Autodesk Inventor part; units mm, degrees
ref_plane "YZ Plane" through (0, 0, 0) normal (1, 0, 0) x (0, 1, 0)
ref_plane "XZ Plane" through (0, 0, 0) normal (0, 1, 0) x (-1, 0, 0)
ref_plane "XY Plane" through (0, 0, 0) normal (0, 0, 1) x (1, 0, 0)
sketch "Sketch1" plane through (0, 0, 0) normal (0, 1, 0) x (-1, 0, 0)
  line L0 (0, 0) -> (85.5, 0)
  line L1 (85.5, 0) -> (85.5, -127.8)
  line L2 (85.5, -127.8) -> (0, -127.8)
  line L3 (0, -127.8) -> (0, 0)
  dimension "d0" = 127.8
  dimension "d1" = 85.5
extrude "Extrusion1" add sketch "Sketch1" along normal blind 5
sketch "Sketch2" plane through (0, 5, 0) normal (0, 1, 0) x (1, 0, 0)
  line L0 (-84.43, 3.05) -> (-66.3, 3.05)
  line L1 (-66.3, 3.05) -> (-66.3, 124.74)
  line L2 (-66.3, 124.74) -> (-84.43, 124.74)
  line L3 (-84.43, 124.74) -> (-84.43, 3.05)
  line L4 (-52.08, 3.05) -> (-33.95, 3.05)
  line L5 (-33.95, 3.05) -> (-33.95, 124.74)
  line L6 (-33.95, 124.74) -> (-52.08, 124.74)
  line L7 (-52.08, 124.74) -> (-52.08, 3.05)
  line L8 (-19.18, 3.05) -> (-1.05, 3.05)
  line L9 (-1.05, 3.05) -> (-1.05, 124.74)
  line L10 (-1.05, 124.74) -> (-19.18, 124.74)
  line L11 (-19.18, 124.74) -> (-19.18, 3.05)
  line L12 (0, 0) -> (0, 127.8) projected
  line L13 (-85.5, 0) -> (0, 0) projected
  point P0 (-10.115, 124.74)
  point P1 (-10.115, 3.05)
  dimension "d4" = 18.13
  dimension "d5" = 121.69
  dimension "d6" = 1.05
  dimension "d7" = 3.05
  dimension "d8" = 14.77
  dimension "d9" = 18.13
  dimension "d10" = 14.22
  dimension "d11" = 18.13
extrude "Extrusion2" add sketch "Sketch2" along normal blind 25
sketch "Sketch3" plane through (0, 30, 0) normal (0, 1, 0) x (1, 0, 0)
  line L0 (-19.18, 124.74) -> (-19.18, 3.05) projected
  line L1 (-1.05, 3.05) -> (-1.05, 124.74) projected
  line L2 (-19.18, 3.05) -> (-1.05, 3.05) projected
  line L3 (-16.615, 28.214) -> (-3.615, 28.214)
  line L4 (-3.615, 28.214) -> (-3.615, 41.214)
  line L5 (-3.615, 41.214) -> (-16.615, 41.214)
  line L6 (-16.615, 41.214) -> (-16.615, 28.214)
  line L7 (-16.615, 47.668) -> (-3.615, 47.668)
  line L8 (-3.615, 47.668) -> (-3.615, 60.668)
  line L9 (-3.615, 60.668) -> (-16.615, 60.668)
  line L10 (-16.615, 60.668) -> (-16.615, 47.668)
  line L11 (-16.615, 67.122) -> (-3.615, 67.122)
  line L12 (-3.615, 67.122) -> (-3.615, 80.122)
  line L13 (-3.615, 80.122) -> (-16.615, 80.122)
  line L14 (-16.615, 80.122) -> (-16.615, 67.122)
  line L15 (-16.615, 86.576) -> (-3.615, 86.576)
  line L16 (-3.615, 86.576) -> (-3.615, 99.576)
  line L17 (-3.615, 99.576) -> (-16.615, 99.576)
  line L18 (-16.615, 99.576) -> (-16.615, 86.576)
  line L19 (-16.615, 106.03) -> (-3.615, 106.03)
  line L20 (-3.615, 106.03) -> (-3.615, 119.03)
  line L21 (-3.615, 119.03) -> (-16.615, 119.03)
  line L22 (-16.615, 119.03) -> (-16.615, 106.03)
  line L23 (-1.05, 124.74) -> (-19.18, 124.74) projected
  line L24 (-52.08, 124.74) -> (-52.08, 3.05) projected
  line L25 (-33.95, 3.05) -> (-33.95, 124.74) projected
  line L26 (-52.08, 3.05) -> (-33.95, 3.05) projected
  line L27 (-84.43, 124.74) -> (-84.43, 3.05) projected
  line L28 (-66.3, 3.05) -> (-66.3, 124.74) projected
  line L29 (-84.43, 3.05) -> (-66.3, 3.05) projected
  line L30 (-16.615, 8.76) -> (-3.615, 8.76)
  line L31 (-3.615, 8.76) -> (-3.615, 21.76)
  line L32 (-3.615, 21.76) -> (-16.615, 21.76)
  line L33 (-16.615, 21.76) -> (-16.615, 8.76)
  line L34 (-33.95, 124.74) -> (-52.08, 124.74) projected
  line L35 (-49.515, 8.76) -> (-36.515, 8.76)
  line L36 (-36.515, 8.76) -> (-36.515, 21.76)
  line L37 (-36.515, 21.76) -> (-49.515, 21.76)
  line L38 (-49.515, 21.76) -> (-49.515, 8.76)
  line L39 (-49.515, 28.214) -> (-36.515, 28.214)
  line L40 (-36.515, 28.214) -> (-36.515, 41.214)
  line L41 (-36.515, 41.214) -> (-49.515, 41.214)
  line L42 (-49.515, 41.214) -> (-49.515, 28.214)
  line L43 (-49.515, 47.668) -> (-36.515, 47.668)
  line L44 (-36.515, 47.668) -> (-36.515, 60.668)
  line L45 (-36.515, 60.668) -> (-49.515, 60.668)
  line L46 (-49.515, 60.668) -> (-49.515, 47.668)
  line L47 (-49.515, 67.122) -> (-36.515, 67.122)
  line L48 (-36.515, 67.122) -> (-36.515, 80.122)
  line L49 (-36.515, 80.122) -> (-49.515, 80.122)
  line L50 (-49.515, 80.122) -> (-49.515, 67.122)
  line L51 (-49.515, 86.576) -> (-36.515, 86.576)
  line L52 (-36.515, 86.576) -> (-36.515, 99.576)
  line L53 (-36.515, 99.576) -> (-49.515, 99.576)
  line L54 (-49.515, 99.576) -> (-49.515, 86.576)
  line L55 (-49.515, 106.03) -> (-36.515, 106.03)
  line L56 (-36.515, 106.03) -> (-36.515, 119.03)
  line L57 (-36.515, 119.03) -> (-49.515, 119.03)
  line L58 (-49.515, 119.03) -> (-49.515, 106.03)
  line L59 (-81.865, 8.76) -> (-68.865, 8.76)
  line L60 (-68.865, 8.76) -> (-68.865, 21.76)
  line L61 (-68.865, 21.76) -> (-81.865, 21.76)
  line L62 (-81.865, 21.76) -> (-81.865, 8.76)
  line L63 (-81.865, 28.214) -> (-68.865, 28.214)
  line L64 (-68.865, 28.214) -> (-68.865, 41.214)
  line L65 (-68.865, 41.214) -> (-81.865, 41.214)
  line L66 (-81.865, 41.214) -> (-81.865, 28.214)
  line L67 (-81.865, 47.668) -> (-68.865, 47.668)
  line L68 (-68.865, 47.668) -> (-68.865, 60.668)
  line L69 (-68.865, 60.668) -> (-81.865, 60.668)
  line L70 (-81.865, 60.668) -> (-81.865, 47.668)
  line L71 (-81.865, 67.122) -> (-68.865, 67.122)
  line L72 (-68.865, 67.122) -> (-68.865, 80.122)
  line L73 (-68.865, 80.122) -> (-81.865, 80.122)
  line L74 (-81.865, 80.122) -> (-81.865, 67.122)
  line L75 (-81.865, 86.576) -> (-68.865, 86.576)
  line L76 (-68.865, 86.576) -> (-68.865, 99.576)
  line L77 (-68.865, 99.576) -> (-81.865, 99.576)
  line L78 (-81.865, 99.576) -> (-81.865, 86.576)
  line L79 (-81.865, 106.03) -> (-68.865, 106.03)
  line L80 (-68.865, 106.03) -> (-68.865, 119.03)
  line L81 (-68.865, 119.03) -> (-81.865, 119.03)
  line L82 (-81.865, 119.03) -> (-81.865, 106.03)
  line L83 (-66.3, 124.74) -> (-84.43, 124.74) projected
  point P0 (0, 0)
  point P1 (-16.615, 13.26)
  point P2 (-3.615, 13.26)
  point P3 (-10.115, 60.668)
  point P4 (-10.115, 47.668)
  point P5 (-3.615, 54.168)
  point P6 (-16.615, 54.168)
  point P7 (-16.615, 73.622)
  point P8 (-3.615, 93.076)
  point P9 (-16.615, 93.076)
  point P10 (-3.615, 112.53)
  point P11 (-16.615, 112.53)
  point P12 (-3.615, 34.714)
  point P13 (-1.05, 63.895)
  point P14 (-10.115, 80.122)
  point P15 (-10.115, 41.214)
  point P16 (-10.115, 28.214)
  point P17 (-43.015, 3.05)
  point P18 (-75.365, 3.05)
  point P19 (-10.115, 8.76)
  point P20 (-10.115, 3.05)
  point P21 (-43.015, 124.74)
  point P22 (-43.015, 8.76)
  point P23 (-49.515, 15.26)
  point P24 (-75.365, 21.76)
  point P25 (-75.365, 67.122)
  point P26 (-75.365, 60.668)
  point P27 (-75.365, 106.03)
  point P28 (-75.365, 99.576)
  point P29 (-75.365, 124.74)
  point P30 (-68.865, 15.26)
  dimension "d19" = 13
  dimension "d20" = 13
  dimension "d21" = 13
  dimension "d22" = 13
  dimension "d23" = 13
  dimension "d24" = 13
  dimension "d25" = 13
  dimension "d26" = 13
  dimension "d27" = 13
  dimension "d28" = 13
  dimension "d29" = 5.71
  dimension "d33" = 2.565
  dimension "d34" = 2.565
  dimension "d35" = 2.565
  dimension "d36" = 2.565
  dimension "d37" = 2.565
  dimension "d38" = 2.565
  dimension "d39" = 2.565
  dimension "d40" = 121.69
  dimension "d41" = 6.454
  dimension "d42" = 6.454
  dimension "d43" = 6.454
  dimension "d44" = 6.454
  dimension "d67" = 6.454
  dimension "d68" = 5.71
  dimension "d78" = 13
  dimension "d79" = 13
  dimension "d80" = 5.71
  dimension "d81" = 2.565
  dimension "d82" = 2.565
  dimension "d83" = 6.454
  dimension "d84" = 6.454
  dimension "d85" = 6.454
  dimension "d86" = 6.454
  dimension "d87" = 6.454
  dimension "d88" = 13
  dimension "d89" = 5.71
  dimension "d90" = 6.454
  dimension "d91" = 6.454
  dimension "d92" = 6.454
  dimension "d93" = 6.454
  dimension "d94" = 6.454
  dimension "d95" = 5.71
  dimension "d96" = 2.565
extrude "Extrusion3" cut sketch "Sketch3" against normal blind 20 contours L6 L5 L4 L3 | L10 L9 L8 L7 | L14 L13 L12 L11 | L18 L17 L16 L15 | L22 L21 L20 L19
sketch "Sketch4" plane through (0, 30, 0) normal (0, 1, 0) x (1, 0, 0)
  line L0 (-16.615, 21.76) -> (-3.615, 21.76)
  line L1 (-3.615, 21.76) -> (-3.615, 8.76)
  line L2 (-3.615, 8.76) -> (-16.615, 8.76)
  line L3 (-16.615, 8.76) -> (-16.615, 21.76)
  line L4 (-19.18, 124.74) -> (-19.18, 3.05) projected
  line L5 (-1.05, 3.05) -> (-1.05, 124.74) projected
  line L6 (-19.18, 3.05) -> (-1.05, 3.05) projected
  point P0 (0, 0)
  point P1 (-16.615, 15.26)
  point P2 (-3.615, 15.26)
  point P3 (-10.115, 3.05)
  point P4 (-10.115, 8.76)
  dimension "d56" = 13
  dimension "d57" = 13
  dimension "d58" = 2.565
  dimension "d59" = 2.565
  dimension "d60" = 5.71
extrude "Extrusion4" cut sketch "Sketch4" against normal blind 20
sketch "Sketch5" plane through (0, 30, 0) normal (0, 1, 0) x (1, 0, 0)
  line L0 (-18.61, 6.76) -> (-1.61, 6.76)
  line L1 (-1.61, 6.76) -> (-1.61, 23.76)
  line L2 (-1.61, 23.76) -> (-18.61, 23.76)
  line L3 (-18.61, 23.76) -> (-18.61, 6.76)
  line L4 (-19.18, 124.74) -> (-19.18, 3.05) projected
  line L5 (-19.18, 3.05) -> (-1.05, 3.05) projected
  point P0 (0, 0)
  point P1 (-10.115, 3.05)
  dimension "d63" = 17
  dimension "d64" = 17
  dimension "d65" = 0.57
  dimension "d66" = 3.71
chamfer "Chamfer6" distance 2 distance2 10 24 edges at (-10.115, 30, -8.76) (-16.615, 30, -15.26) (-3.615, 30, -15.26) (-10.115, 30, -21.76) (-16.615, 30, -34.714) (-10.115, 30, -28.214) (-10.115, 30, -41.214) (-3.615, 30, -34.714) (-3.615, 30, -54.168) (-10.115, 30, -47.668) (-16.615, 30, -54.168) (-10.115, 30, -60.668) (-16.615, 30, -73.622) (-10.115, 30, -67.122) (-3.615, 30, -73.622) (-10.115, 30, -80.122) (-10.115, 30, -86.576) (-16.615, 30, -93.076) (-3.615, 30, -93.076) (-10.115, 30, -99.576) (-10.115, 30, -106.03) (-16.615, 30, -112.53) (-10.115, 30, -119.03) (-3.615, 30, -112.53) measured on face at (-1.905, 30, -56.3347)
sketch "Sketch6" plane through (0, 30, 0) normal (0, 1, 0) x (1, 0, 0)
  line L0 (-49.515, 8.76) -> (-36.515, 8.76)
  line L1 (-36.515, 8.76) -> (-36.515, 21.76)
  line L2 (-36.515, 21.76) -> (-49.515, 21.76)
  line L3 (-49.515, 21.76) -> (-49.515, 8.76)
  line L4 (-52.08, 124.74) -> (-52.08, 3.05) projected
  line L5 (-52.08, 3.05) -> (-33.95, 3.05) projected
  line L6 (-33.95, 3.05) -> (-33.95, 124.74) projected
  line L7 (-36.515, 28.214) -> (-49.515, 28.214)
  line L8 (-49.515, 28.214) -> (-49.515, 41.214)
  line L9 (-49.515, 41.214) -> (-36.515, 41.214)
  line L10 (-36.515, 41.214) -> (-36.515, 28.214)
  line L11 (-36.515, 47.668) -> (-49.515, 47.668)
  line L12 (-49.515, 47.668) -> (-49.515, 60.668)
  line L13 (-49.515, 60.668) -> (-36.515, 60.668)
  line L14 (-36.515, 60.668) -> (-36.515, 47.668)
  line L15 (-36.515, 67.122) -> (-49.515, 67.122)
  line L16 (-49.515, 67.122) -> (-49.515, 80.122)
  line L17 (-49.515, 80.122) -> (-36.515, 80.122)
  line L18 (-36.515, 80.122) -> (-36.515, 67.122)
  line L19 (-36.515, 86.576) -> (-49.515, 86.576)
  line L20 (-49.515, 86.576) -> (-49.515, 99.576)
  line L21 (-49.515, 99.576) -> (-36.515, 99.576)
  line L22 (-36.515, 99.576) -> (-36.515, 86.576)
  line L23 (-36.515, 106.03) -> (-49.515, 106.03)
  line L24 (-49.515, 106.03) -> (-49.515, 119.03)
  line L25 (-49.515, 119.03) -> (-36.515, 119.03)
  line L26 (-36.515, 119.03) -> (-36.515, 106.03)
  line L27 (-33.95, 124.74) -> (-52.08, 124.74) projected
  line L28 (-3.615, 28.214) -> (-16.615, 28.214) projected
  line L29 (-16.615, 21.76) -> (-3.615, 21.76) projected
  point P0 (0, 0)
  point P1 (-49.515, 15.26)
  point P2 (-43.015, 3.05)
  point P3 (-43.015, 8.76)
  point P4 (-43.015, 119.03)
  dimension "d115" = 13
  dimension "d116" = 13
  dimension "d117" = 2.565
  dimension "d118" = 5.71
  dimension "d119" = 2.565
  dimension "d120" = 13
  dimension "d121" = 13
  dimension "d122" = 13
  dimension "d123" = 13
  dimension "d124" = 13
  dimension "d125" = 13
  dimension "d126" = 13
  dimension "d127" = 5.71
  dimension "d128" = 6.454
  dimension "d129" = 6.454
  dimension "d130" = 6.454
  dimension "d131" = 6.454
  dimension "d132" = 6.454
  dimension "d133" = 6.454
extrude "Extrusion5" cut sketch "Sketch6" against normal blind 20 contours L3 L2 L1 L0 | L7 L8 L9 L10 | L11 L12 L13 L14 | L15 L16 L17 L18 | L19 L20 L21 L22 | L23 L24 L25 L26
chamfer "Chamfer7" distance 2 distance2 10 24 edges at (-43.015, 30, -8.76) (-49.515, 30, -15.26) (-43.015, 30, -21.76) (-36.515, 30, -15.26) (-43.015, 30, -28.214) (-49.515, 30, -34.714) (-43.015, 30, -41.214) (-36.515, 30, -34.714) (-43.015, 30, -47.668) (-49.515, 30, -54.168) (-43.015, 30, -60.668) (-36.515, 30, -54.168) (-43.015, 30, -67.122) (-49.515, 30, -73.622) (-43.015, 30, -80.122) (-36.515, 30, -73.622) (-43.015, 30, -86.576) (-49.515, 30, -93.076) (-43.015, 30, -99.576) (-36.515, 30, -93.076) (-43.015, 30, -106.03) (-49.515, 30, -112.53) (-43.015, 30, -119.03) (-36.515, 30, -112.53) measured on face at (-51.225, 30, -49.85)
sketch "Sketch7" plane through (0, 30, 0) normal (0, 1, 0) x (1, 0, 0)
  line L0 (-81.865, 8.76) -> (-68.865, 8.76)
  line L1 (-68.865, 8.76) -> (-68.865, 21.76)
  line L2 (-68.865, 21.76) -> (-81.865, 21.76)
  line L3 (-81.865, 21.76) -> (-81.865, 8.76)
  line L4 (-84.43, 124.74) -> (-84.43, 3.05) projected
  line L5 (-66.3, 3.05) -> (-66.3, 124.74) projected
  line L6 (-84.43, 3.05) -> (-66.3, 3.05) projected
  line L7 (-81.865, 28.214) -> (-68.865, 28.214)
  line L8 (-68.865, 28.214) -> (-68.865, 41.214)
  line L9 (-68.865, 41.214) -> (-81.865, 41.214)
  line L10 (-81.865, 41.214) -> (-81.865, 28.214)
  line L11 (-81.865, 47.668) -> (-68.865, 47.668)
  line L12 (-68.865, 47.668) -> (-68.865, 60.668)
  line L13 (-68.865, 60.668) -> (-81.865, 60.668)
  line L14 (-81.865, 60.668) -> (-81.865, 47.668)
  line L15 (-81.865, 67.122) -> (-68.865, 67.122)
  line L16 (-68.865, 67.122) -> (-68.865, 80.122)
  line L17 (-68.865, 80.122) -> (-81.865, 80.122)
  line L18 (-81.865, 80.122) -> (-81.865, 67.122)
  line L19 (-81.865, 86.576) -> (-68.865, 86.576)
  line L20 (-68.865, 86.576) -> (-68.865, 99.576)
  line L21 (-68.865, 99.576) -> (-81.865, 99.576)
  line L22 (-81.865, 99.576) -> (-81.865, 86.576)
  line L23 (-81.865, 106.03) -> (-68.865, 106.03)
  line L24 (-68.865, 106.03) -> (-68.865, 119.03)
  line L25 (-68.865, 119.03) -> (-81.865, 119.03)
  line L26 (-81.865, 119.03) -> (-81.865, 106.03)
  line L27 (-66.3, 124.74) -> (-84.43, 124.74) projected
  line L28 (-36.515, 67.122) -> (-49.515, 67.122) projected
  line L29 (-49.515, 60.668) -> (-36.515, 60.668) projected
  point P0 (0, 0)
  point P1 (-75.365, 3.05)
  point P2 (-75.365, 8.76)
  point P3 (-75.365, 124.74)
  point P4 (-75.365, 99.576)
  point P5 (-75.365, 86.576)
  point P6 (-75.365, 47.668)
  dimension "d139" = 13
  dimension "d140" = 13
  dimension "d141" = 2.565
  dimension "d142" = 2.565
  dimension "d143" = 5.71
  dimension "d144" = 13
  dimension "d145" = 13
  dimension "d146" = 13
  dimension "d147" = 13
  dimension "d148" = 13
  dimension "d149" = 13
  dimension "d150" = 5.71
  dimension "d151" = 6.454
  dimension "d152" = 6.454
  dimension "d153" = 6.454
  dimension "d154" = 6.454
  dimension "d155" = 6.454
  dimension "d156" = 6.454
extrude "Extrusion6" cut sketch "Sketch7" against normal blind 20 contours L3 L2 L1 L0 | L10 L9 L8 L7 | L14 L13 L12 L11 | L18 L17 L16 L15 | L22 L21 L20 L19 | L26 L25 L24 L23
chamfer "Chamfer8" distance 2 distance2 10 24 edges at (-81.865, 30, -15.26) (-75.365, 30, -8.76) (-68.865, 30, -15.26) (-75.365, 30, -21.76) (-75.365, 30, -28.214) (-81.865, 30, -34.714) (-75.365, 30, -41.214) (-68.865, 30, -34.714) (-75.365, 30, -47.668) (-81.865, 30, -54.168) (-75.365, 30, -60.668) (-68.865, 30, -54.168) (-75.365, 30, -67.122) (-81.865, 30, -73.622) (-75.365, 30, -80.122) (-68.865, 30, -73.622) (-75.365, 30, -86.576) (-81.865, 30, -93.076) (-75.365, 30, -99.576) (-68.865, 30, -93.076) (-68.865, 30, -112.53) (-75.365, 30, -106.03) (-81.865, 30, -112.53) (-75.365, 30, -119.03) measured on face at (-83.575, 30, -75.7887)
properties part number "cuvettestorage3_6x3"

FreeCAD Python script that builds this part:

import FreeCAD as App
import Part
import Sketcher
from FreeCAD import Vector
Q = App.Units.Quantity


def edges_at(feature, points):
    """Names of the edges that pass closest to the given points."""
    edges = feature.Shape.Edges
    near = lambda p: min(range(len(edges)), key=lambda i: edges[i].distToShape(Part.Vertex(*p))[0])
    return sorted({f"Edge{near(p) + 1}" for p in points})


def add_polygon(sketch, points):
    """Adds a closed chain of lines whose ends are joined by coincident constraints."""
    first, n = sketch.GeometryCount, len(points)
    for a, b in zip(points, points[1:] + points[:1]):
        sketch.addGeometry(Part.LineSegment(App.Vector(*a, 0), App.Vector(*b, 0)), False)
    for i in range(n):
        sketch.addConstraint(Sketcher.Constraint("Coincident", first + i, 2, first + (i + 1) % n, 1))

doc = App.newDocument("Part")
body = doc.addObject("PartDesign::Body", "Body")

# Sketch on XZ plane
sketch1 = body.newObject("Sketcher::SketchObject", "Sketch")
sketch1.AttachmentSupport = (doc.getObject("XZ_Plane"), [""])
sketch1.MapMode = "FlatFace"
add_polygon(sketch1, [(-85.5, 0), (0, 0), (0, -127.8), (-85.5, -127.8)])  # lines 0-3
sketch1.addConstraint(Sketcher.Constraint("Horizontal", 0))
sketch1.addConstraint(Sketcher.Constraint("Vertical", 1))
sketch1.addConstraint(Sketcher.Constraint("Horizontal", 2))
sketch1.addConstraint(Sketcher.Constraint("Vertical", 3))
sketch1.addConstraint(Sketcher.Constraint("Coincident", 0, 2, -1, 1))
sketch1.addConstraint(Sketcher.Constraint("DistanceX", 0, 1, 0, 2, Q("85.5 mm")))
sketch1.addConstraint(Sketcher.Constraint("DistanceY", 1, 2, 1, 1, Q("127.8 mm")))
pad1 = body.newObject("PartDesign::Pad", "Pad")
pad1.Profile = sketch1
pad1.Length = 5
pad1.Reversed = True

# Sketch on XZ plane
sketch2 = body.newObject("Sketcher::SketchObject", "Sketch001")
sketch2.AttachmentSupport = (doc.getObject("XZ_Plane"), [""])
sketch2.MapMode = "FlatFace"
sketch2.AttachmentOffset = App.Placement(Vector(0, 0, -5), App.Rotation())
add_polygon(sketch2, [(-84.43, -124.74), (-84.43, -3.05), (-66.3, -3.05), (-66.3, -124.74)])  # lines 0-3
add_polygon(sketch2, [(-52.08, -124.74), (-52.08, -3.05), (-33.95, -3.05), (-33.95, -124.74)])  # lines 4-7
add_polygon(sketch2, [(-19.18, -124.74), (-19.18, -3.05), (-1.05, -3.05), (-1.05, -124.74)])  # lines 8-11
sketch2.addConstraint(Sketcher.Constraint("Vertical", 0))
sketch2.addConstraint(Sketcher.Constraint("Horizontal", 1))
sketch2.addConstraint(Sketcher.Constraint("Vertical", 2))
sketch2.addConstraint(Sketcher.Constraint("Horizontal", 3))
sketch2.addConstraint(Sketcher.Constraint("Vertical", 4))
sketch2.addConstraint(Sketcher.Constraint("Horizontal", 5))
sketch2.addConstraint(Sketcher.Constraint("Vertical", 6))
sketch2.addConstraint(Sketcher.Constraint("Horizontal", 7))
sketch2.addConstraint(Sketcher.Constraint("Vertical", 8))
sketch2.addConstraint(Sketcher.Constraint("Horizontal", 9))
sketch2.addConstraint(Sketcher.Constraint("Vertical", 10))
sketch2.addConstraint(Sketcher.Constraint("Horizontal", 11))
sketch2.addConstraint(Sketcher.Constraint("Horizontal", 1, 2, 4, 2))
sketch2.addConstraint(Sketcher.Constraint("Horizontal", 3, 2, 6, 2))
sketch2.addConstraint(Sketcher.Constraint("Horizontal", 5, 2, 8, 2))
sketch2.addConstraint(Sketcher.Constraint("Horizontal", 7, 2, 10, 2))
sketch2.addConstraint(Sketcher.Constraint("Equal", 3, 5))
sketch2.addConstraint(Sketcher.Constraint("Equal", 7, 9))
sketch2.addConstraint(Sketcher.Constraint("DistanceX", 1, 1, 1, 2, Q("18.13 mm")))
sketch2.addConstraint(Sketcher.Constraint("DistanceY", 0, 1, 0, 2, Q("121.69 mm")))
sketch2.addConstraint(Sketcher.Constraint("DistanceY", 0, 2, -1, 1, Q("3.05 mm")))
sketch2.addConstraint(Sketcher.Constraint("DistanceX", 9, 2, -1, 1, Q("1.05 mm")))
sketch2.addConstraint(Sketcher.Constraint("DistanceX", 1, 2, 4, 2, Q("14.22 mm")))
sketch2.addConstraint(Sketcher.Constraint("DistanceX", 5, 2, 8, 2, Q("14.77 mm")))
pad2 = body.newObject("PartDesign::Pad", "Pad001")
pad2.Profile = sketch2
pad2.Length = 25
pad2.Reversed = True

# Sketch on XZ plane
sketch3 = body.newObject("Sketcher::SketchObject", "Sketch002")
sketch3.AttachmentSupport = (doc.getObject("XZ_Plane"), [""])
sketch3.MapMode = "FlatFace"
sketch3.AttachmentOffset = App.Placement(Vector(0, 0, -30), App.Rotation())
add_polygon(sketch3, [(-16.615, -41.214), (-16.615, -28.214), (-3.615, -28.214), (-3.615, -41.214)])  # lines 0-3
add_polygon(sketch3, [(-16.615, -60.668), (-16.615, -47.668), (-3.615, -47.668), (-3.615, -60.668)])  # lines 4-7
add_polygon(sketch3, [(-16.615, -80.122), (-16.615, -67.122), (-3.615, -67.122), (-3.615, -80.122)])  # lines 8-11
add_polygon(sketch3, [(-16.615, -99.576), (-16.615, -86.576), (-3.615, -86.576), (-3.615, -99.576)])  # lines 12-15
add_polygon(sketch3, [(-16.615, -119.03), (-16.615, -106.03), (-3.615, -106.03), (-3.615, -119.03)])  # lines 16-19
sketch3.addConstraint(Sketcher.Constraint("Vertical", 0))
sketch3.addConstraint(Sketcher.Constraint("Horizontal", 1))
sketch3.addConstraint(Sketcher.Constraint("Vertical", 2))
sketch3.addConstraint(Sketcher.Constraint("Horizontal", 3))
sketch3.addConstraint(Sketcher.Constraint("Vertical", 4))
sketch3.addConstraint(Sketcher.Constraint("Horizontal", 5))
sketch3.addConstraint(Sketcher.Constraint("Vertical", 6))
sketch3.addConstraint(Sketcher.Constraint("Horizontal", 7))
sketch3.addConstraint(Sketcher.Constraint("Vertical", 8))
sketch3.addConstraint(Sketcher.Constraint("Horizontal", 9))
sketch3.addConstraint(Sketcher.Constraint("Vertical", 10))
sketch3.addConstraint(Sketcher.Constraint("Horizontal", 11))
sketch3.addConstraint(Sketcher.Constraint("Vertical", 12))
sketch3.addConstraint(Sketcher.Constraint("Horizontal", 13))
sketch3.addConstraint(Sketcher.Constraint("Vertical", 14))
sketch3.addConstraint(Sketcher.Constraint("Horizontal", 15))
sketch3.addConstraint(Sketcher.Constraint("Vertical", 16))
sketch3.addConstraint(Sketcher.Constraint("Horizontal", 17))
sketch3.addConstraint(Sketcher.Constraint("Vertical", 18))
sketch3.addConstraint(Sketcher.Constraint("Horizontal", 19))
sketch3.addConstraint(Sketcher.Constraint("Vertical", 3, 2, 4, 2))
sketch3.addConstraint(Sketcher.Constraint("Vertical", 2, 2, 5, 2))
sketch3.addConstraint(Sketcher.Constraint("Vertical", 7, 2, 8, 2))
sketch3.addConstraint(Sketcher.Constraint("Vertical", 6, 2, 9, 2))
sketch3.addConstraint(Sketcher.Constraint("Vertical", 11, 2, 12, 2))
sketch3.addConstraint(Sketcher.Constraint("Vertical", 10, 2, 13, 2))
sketch3.addConstraint(Sketcher.Constraint("Vertical", 15, 2, 16, 2))
sketch3.addConstraint(Sketcher.Constraint("Vertical", 14, 2, 17, 2))
sketch3.addConstraint(Sketcher.Constraint("Equal", 19, 0))
sketch3.addConstraint(Sketcher.Constraint("Equal", 2, 4))
sketch3.addConstraint(Sketcher.Constraint("Equal", 6, 8))
sketch3.addConstraint(Sketcher.Constraint("Equal", 10, 12))
sketch3.addConstraint(Sketcher.Constraint("Equal", 14, 16))
sketch3.addConstraint(Sketcher.Constraint("DistanceX", 1, 1, 1, 2, Q("13 mm")))
sketch3.addConstraint(Sketcher.Constraint("DistanceY", 4, 2, 3, 2, Q("6.454 mm")))
sketch3.addConstraint(Sketcher.Constraint("DistanceY", 8, 2, 7, 2, Q("6.454 mm")))
sketch3.addConstraint(Sketcher.Constraint("DistanceY", 12, 2, 11, 2, Q("6.454 mm")))
sketch3.addConstraint(Sketcher.Constraint("DistanceY", 16, 2, 15, 2, Q("6.454 mm")))
sketch3.addConstraint(Sketcher.Constraint("DistanceY", 16, 2, -1, 1, Q("106.03 mm")))
sketch3.addConstraint(Sketcher.Constraint("DistanceX", 0, 2, -1, 1, Q("16.615 mm")))
pocket1 = body.newObject("PartDesign::Pocket", "Pocket")
pocket1.Profile = sketch3
pocket1.Length = 20
pocket1.Reversed = True

# Sketch on XZ plane
sketch4 = body.newObject("Sketcher::SketchObject", "Sketch003")
sketch4.AttachmentSupport = (doc.getObject("XZ_Plane"), [""])
sketch4.MapMode = "FlatFace"
sketch4.AttachmentOffset = App.Placement(Vector(0, 0, -30), App.Rotation())
add_polygon(sketch4, [(-3.615, -21.76), (-16.615, -21.76), (-16.615, -8.76), (-3.615, -8.76)])  # lines 0-3
sketch4.addConstraint(Sketcher.Constraint("Horizontal", 0))
sketch4.addConstraint(Sketcher.Constraint("Vertical", 1))
sketch4.addConstraint(Sketcher.Constraint("Horizontal", 2))
sketch4.addConstraint(Sketcher.Constraint("Vertical", 3))
sketch4.addConstraint(Sketcher.Constraint("Equal", 2, 1))
sketch4.addConstraint(Sketcher.Constraint("DistanceX", 0, 2, 0, 1, Q("13 mm")))
sketch4.addConstraint(Sketcher.Constraint("DistanceY", 0, 2, -1, 1, Q("21.76 mm")))
sketch4.addConstraint(Sketcher.Constraint("DistanceX", 0, 2, -1, 1, Q("16.615 mm")))
pocket2 = body.newObject("PartDesign::Pocket", "Pocket001")
pocket2.Profile = sketch4
pocket2.Length = 20
pocket2.Reversed = True
doc.recompute()

chamfer = body.newObject("PartDesign::Chamfer", "Chamfer")
chamfer.Base = (pocket2, edges_at(pocket2, [
    (-10.115, 30, -8.76),
    (-16.615, 30, -15.26),
    (-3.615, 30, -15.26),
    (-10.115, 30, -21.76),
    (-16.615, 30, -34.714),
    (-10.115, 30, -28.214),
    (-10.115, 30, -41.214),
    (-3.615, 30, -34.714),
    (-3.615, 30, -54.168),
    (-10.115, 30, -47.668),
    (-16.615, 30, -54.168),
    (-10.115, 30, -60.668),
    (-16.615, 30, -73.622),
    (-10.115, 30, -67.122),
    (-3.615, 30, -73.622),
    (-10.115, 30, -80.122),
    (-10.115, 30, -86.576),
    (-16.615, 30, -93.076),
    (-3.615, 30, -93.076),
    (-10.115, 30, -99.576),
    (-10.115, 30, -106.03),
    (-16.615, 30, -112.53),
    (-10.115, 30, -119.03),
    (-3.615, 30, -112.53),
]))
chamfer.ChamferType = "Two distances"
chamfer.Size = 2
chamfer.Size2 = 10

# Sketch on XZ plane
sketch5 = body.newObject("Sketcher::SketchObject", "Sketch004")
sketch5.AttachmentSupport = (doc.getObject("XZ_Plane"), [""])
sketch5.MapMode = "FlatFace"
sketch5.AttachmentOffset = App.Placement(Vector(0, 0, -30), App.Rotation())
add_polygon(sketch5, [(-49.515, -21.76), (-49.515, -8.76), (-36.515, -8.76), (-36.515, -21.76)])  # lines 0-3
add_polygon(sketch5, [(-49.515, -28.214), (-36.515, -28.214), (-36.515, -41.214), (-49.515, -41.214)])  # lines 4-7
add_polygon(sketch5, [(-49.515, -47.668), (-36.515, -47.668), (-36.515, -60.668), (-49.515, -60.668)])  # lines 8-11
add_polygon(sketch5, [(-49.515, -67.122), (-36.515, -67.122), (-36.515, -80.122), (-49.515, -80.122)])  # lines 12-15
add_polygon(sketch5, [(-49.515, -86.576), (-36.515, -86.576), (-36.515, -99.576), (-49.515, -99.576)])  # lines 16-19
add_polygon(sketch5, [(-49.515, -106.03), (-36.515, -106.03), (-36.515, -119.03), (-49.515, -119.03)])  # lines 20-23
sketch5.addConstraint(Sketcher.Constraint("Vertical", 0))
sketch5.addConstraint(Sketcher.Constraint("Horizontal", 1))
sketch5.addConstraint(Sketcher.Constraint("Vertical", 2))
sketch5.addConstraint(Sketcher.Constraint("Horizontal", 3))
sketch5.addConstraint(Sketcher.Constraint("Horizontal", 4))
sketch5.addConstraint(Sketcher.Constraint("Vertical", 5))
sketch5.addConstraint(Sketcher.Constraint("Horizontal", 6))
sketch5.addConstraint(Sketcher.Constraint("Vertical", 7))
sketch5.addConstraint(Sketcher.Constraint("Horizontal", 8))
sketch5.addConstraint(Sketcher.Constraint("Vertical", 9))
sketch5.addConstraint(Sketcher.Constraint("Horizontal", 10))
sketch5.addConstraint(Sketcher.Constraint("Vertical", 11))
sketch5.addConstraint(Sketcher.Constraint("Horizontal", 12))
sketch5.addConstraint(Sketcher.Constraint("Vertical", 13))
sketch5.addConstraint(Sketcher.Constraint("Horizontal", 14))
sketch5.addConstraint(Sketcher.Constraint("Vertical", 15))
sketch5.addConstraint(Sketcher.Constraint("Horizontal", 16))
sketch5.addConstraint(Sketcher.Constraint("Vertical", 17))
sketch5.addConstraint(Sketcher.Constraint("Horizontal", 18))
sketch5.addConstraint(Sketcher.Constraint("Vertical", 19))
sketch5.addConstraint(Sketcher.Constraint("Horizontal", 20))
sketch5.addConstraint(Sketcher.Constraint("Vertical", 21))
sketch5.addConstraint(Sketcher.Constraint("Horizontal", 22))
sketch5.addConstraint(Sketcher.Constraint("Vertical", 23))
sketch5.addConstraint(Sketcher.Constraint("Vertical", 2, 2, 4, 2))
sketch5.addConstraint(Sketcher.Constraint("Vertical", 3, 2, 6, 2))
sketch5.addConstraint(Sketcher.Constraint("Vertical", 5, 2, 8, 2))
sketch5.addConstraint(Sketcher.Constraint("Vertical", 7, 2, 10, 2))
sketch5.addConstraint(Sketcher.Constraint("Vertical", 9, 2, 12, 2))
sketch5.addConstraint(Sketcher.Constraint("Vertical", 11, 2, 14, 2))
sketch5.addConstraint(Sketcher.Constraint("Vertical", 13, 2, 16, 2))
sketch5.addConstraint(Sketcher.Constraint("Vertical", 15, 2, 18, 2))
sketch5.addConstraint(Sketcher.Constraint("Vertical", 17, 2, 20, 2))
sketch5.addConstraint(Sketcher.Constraint("Vertical", 19, 2, 22, 2))
sketch5.addConstraint(Sketcher.Constraint("Equal", 22, 0))
sketch5.addConstraint(Sketcher.Constraint("Equal", 2, 5))
sketch5.addConstraint(Sketcher.Constraint("Equal", 7, 9))
sketch5.addConstraint(Sketcher.Constraint("Equal", 11, 13))
sketch5.addConstraint(Sketcher.Constraint("Equal", 15, 17))
sketch5.addConstraint(Sketcher.Constraint("Equal", 19, 21))
sketch5.addConstraint(Sketcher.Constraint("DistanceX", 1, 1, 1, 2, Q("13 mm")))
sketch5.addConstraint(Sketcher.Constraint("DistanceY", 4, 2, 2, 2, Q("6.454 mm")))
sketch5.addConstraint(Sketcher.Constraint("DistanceY", 8, 2, 5, 2, Q("6.454 mm")))
sketch5.addConstraint(Sketcher.Constraint("DistanceY", 12, 2, 9, 2, Q("6.454 mm")))
sketch5.addConstraint(Sketcher.Constraint("DistanceY", 16, 2, 13, 2, Q("6.454 mm")))
sketch5.addConstraint(Sketcher.Constraint("DistanceY", 20, 2, 17, 2, Q("6.454 mm")))
sketch5.addConstraint(Sketcher.Constraint("DistanceY", 0, 2, -1, 1, Q("8.76 mm")))
sketch5.addConstraint(Sketcher.Constraint("DistanceX", 0, 2, -1, 1, Q("49.515 mm")))
pocket3 = body.newObject("PartDesign::Pocket", "Pocket002")
pocket3.Profile = sketch5
pocket3.Length = 20
pocket3.Reversed = True
doc.recompute()

chamfer2 = body.newObject("PartDesign::Chamfer", "Chamfer001")
chamfer2.Base = (pocket3, edges_at(pocket3, [
    (-43.015, 30, -8.76),
    (-49.515, 30, -15.26),
    (-43.015, 30, -21.76),
    (-36.515, 30, -15.26),
    (-43.015, 30, -28.214),
    (-49.515, 30, -34.714),
    (-43.015, 30, -41.214),
    (-36.515, 30, -34.714),
    (-43.015, 30, -47.668),
    (-49.515, 30, -54.168),
    (-43.015, 30, -60.668),
    (-36.515, 30, -54.168),
    (-43.015, 30, -67.122),
    (-49.515, 30, -73.622),
    (-43.015, 30, -80.122),
    (-36.515, 30, -73.622),
    (-43.015, 30, -86.576),
    (-49.515, 30, -93.076),
    (-43.015, 30, -99.576),
    (-36.515, 30, -93.076),
    (-43.015, 30, -106.03),
    (-49.515, 30, -112.53),
    (-43.015, 30, -119.03),
    (-36.515, 30, -112.53),
]))
chamfer2.ChamferType = "Two distances"
chamfer2.Size = 2
chamfer2.Size2 = 10

# Sketch on XZ plane
sketch6 = body.newObject("Sketcher::SketchObject", "Sketch005")
sketch6.AttachmentSupport = (doc.getObject("XZ_Plane"), [""])
sketch6.MapMode = "FlatFace"
sketch6.AttachmentOffset = App.Placement(Vector(0, 0, -30), App.Rotation())
add_polygon(sketch6, [(-81.865, -21.76), (-81.865, -8.76), (-68.865, -8.76), (-68.865, -21.76)])  # lines 0-3
add_polygon(sketch6, [(-81.865, -41.214), (-81.865, -28.214), (-68.865, -28.214), (-68.865, -41.214)])  # lines 4-7
add_polygon(sketch6, [(-81.865, -60.668), (-81.865, -47.668), (-68.865, -47.668), (-68.865, -60.668)])  # lines 8-11
add_polygon(sketch6, [(-81.865, -80.122), (-81.865, -67.122), (-68.865, -67.122), (-68.865, -80.122)])  # lines 12-15
add_polygon(sketch6, [(-81.865, -99.576), (-81.865, -86.576), (-68.865, -86.576), (-68.865, -99.576)])  # lines 16-19
add_polygon(sketch6, [(-81.865, -119.03), (-81.865, -106.03), (-68.865, -106.03), (-68.865, -119.03)])  # lines 20-23
sketch6.addConstraint(Sketcher.Constraint("Vertical", 0))
sketch6.addConstraint(Sketcher.Constraint("Horizontal", 1))
sketch6.addConstraint(Sketcher.Constraint("Vertical", 2))
sketch6.addConstraint(Sketcher.Constraint("Horizontal", 3))
sketch6.addConstraint(Sketcher.Constraint("Vertical", 4))
sketch6.addConstraint(Sketcher.Constraint("Horizontal", 5))
sketch6.addConstraint(Sketcher.Constraint("Vertical", 6))
sketch6.addConstraint(Sketcher.Constraint("Horizontal", 7))
sketch6.addConstraint(Sketcher.Constraint("Vertical", 8))
sketch6.addConstraint(Sketcher.Constraint("Horizontal", 9))
sketch6.addConstraint(Sketcher.Constraint("Vertical", 10))
sketch6.addConstraint(Sketcher.Constraint("Horizontal", 11))
sketch6.addConstraint(Sketcher.Constraint("Vertical", 12))
sketch6.addConstraint(Sketcher.Constraint("Horizontal", 13))
sketch6.addConstraint(Sketcher.Constraint("Vertical", 14))
sketch6.addConstraint(Sketcher.Constraint("Horizontal", 15))
sketch6.addConstraint(Sketcher.Constraint("Vertical", 16))
sketch6.addConstraint(Sketcher.Constraint("Horizontal", 17))
sketch6.addConstraint(Sketcher.Constraint("Vertical", 18))
sketch6.addConstraint(Sketcher.Constraint("Horizontal", 19))
sketch6.addConstraint(Sketcher.Constraint("Vertical", 20))
sketch6.addConstraint(Sketcher.Constraint("Horizontal", 21))
sketch6.addConstraint(Sketcher.Constraint("Vertical", 22))
sketch6.addConstraint(Sketcher.Constraint("Horizontal", 23))
sketch6.addConstraint(Sketcher.Constraint("Vertical", 3, 2, 4, 2))
sketch6.addConstraint(Sketcher.Constraint("Vertical", 2, 2, 5, 2))
sketch6.addConstraint(Sketcher.Constraint("Vertical", 7, 2, 8, 2))
sketch6.addConstraint(Sketcher.Constraint("Vertical", 6, 2, 9, 2))
sketch6.addConstraint(Sketcher.Constraint("Vertical", 11, 2, 12, 2))
sketch6.addConstraint(Sketcher.Constraint("Vertical", 10, 2, 13, 2))
sketch6.addConstraint(Sketcher.Constraint("Vertical", 15, 2, 16, 2))
sketch6.addConstraint(Sketcher.Constraint("Vertical", 14, 2, 17, 2))
sketch6.addConstraint(Sketcher.Constraint("Vertical", 19, 2, 20, 2))
sketch6.addConstraint(Sketcher.Constraint("Vertical", 18, 2, 21, 2))
sketch6.addConstraint(Sketcher.Constraint("Equal", 23, 0))
sketch6.addConstraint(Sketcher.Constraint("Equal", 2, 4))
sketch6.addConstraint(Sketcher.Constraint("Equal", 6, 8))
sketch6.addConstraint(Sketcher.Constraint("Equal", 10, 12))
sketch6.addConstraint(Sketcher.Constraint("Equal", 14, 16))
sketch6.addConstraint(Sketcher.Constraint("Equal", 18, 20))
sketch6.addConstraint(Sketcher.Constraint("DistanceX", 1, 1, 1, 2, Q("13 mm")))
sketch6.addConstraint(Sketcher.Constraint("DistanceY", 4, 2, 3, 2, Q("6.454 mm")))
sketch6.addConstraint(Sketcher.Constraint("DistanceY", 8, 2, 7, 2, Q("6.454 mm")))
sketch6.addConstraint(Sketcher.Constraint("DistanceY", 12, 2, 11, 2, Q("6.454 mm")))
sketch6.addConstraint(Sketcher.Constraint("DistanceY", 16, 2, 15, 2, Q("6.454 mm")))
sketch6.addConstraint(Sketcher.Constraint("DistanceY", 20, 2, 19, 2, Q("6.454 mm")))
sketch6.addConstraint(Sketcher.Constraint("DistanceY", 0, 2, -1, 1, Q("8.76 mm")))
sketch6.addConstraint(Sketcher.Constraint("DistanceX", 0, 2, -1, 1, Q("81.865 mm")))
pocket4 = body.newObject("PartDesign::Pocket", "Pocket003")
pocket4.Profile = sketch6
pocket4.Length = 20
pocket4.Reversed = True
doc.recompute()

chamfer3 = body.newObject("PartDesign::Chamfer", "Chamfer002")
chamfer3.Base = (pocket4, edges_at(pocket4, [
    (-81.865, 30, -15.26),
    (-75.365, 30, -8.76),
    (-68.865, 30, -15.26),
    (-75.365, 30, -21.76),
    (-75.365, 30, -28.214),
    (-81.865, 30, -34.714),
    (-75.365, 30, -41.214),
    (-68.865, 30, -34.714),
    (-75.365, 30, -47.668),
    (-81.865, 30, -54.168),
    (-75.365, 30, -60.668),
    (-68.865, 30, -54.168),
    (-75.365, 30, -67.122),
    (-81.865, 30, -73.622),
    (-75.365, 30, -80.122),
    (-68.865, 30, -73.622),
    (-75.365, 30, -86.576),
    (-81.865, 30, -93.076),
    (-75.365, 30, -99.576),
    (-68.865, 30, -93.076),
    (-68.865, 30, -112.53),
    (-75.365, 30, -106.03),
    (-81.865, 30, -112.53),
    (-75.365, 30, -119.03),
]))
chamfer3.ChamferType = "Two distances"
chamfer3.Size = 2
chamfer3.Size2 = 10

doc.recompute()
